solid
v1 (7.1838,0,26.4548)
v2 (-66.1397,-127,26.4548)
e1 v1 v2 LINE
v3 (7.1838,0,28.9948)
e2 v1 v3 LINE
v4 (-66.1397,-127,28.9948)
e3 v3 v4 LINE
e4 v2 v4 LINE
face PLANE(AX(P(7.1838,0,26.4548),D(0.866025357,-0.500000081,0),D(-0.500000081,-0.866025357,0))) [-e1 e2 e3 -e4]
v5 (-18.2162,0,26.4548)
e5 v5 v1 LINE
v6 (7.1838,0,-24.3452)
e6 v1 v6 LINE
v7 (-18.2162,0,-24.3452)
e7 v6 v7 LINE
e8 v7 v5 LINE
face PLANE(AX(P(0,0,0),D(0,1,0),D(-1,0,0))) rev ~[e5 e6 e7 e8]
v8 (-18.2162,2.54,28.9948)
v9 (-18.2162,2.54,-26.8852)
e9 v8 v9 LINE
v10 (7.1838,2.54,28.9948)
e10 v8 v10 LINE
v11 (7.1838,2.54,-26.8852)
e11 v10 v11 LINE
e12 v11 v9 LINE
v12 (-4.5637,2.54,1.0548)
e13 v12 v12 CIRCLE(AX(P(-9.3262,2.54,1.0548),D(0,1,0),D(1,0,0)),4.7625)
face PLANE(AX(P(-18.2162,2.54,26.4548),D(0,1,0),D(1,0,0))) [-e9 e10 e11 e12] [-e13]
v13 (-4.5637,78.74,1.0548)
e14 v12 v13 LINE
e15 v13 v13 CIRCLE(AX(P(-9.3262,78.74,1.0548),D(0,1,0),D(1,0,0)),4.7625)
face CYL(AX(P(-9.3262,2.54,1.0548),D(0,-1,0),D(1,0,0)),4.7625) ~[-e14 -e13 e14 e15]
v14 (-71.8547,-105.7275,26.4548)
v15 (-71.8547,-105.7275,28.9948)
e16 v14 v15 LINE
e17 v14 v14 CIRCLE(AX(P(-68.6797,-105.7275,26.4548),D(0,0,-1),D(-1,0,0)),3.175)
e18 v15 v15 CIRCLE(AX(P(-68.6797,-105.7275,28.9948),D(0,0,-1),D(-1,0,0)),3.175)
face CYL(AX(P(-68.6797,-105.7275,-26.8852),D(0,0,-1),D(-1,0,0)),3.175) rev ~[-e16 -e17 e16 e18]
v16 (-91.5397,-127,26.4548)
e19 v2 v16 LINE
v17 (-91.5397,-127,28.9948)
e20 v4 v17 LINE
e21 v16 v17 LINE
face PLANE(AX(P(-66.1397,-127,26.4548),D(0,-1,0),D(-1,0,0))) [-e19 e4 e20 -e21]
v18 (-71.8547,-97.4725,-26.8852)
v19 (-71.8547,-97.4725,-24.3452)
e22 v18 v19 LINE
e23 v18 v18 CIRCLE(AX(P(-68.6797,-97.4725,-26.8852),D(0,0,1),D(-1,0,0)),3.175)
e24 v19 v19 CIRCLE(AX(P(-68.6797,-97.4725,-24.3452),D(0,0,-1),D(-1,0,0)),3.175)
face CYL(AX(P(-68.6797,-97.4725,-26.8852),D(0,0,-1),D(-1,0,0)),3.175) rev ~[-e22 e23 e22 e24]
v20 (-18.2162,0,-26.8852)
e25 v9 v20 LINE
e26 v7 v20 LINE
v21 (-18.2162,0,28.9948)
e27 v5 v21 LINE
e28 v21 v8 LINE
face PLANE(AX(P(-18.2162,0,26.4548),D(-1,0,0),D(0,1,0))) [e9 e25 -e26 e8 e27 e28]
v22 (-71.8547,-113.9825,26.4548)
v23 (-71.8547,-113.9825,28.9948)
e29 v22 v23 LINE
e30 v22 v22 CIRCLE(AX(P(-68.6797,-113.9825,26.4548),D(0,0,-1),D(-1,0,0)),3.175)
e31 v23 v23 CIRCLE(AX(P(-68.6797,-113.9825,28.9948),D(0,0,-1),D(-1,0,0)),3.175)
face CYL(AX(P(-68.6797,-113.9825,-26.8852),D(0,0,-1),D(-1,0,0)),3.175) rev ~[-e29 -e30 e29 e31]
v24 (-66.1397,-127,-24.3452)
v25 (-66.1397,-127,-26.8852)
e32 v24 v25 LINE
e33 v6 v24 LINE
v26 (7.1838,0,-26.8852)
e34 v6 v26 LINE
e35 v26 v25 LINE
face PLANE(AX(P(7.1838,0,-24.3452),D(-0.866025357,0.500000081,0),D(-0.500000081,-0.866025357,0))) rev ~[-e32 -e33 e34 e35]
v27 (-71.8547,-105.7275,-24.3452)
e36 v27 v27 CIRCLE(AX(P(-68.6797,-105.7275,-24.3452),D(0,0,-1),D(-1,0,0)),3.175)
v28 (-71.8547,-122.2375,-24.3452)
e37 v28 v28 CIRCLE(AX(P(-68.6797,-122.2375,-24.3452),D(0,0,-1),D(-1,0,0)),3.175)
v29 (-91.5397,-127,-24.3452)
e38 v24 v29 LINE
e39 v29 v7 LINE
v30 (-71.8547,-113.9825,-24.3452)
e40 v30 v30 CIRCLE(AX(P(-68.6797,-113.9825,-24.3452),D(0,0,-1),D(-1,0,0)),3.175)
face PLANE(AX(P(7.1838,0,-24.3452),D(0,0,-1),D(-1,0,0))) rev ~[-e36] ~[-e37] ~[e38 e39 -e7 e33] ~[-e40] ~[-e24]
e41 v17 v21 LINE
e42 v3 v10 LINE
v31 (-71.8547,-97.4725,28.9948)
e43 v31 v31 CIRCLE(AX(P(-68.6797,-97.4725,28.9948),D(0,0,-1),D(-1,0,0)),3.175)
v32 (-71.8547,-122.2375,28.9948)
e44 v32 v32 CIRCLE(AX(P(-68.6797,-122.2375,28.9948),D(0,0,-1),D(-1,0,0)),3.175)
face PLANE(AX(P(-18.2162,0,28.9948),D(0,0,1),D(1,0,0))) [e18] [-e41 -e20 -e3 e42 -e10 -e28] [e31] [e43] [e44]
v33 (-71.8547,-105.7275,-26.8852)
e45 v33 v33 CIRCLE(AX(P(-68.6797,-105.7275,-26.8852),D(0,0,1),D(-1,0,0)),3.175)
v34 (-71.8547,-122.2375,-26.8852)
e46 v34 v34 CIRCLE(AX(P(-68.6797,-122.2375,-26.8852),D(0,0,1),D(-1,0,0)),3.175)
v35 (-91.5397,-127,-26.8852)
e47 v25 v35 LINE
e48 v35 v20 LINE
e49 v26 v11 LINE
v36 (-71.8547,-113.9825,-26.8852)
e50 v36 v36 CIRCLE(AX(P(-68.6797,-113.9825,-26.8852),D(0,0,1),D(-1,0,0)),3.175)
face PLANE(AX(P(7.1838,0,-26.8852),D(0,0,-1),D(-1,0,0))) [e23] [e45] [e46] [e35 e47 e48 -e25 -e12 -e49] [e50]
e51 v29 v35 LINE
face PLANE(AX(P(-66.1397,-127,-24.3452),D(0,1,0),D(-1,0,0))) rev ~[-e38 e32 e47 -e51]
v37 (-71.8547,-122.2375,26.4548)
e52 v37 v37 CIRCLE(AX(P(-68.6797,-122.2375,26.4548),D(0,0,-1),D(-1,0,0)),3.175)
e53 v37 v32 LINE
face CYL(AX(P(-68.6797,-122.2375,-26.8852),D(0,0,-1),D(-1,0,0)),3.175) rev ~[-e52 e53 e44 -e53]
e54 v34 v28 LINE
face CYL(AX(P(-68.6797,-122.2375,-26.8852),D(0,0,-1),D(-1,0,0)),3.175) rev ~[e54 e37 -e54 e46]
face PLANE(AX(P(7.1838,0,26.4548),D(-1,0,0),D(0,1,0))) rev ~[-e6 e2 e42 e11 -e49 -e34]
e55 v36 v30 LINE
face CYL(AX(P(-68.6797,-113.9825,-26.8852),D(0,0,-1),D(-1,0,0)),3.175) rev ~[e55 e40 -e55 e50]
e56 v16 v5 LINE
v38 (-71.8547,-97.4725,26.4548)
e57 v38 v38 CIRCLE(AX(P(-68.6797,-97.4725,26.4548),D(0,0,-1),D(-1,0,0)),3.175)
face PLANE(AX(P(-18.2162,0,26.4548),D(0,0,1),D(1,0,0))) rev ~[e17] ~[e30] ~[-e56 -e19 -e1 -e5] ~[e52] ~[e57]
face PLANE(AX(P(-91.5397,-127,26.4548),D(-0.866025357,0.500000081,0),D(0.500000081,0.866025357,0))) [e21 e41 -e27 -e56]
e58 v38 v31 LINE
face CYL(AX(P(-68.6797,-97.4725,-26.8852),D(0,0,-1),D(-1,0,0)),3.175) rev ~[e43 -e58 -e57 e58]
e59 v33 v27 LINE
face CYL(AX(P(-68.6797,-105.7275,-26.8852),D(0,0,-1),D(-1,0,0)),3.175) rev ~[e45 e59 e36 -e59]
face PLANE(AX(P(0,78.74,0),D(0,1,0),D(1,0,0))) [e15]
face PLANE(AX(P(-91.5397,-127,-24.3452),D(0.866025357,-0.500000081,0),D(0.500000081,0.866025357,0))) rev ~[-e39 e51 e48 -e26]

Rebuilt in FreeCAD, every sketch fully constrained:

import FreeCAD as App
import Part
import Sketcher
from FreeCAD import Vector
Q = App.Units.Quantity


def add_polygon(sketch, points):
    """Adds a closed chain of lines whose ends are joined by coincident constraints."""
    first, n = sketch.GeometryCount, len(points)
    for a, b in zip(points, points[1:] + points[:1]):
        sketch.addGeometry(Part.LineSegment(App.Vector(*a, 0), App.Vector(*b, 0)), False)
    for i in range(n):
        sketch.addConstraint(Sketcher.Constraint("Coincident", first + i, 2, first + (i + 1) % n, 1))

doc = App.newDocument("Part")
params = doc.addObject("Spreadsheet::Sheet", "Params")
for row, (alias, value) in enumerate([
    ("sketch1_width", "1 in"),
    ("sketch1_height", "2 in"),
    ("pad1_length", "0.1 in"),
    ("sketch2_width", "1 in"),
    ("sketch2_height", "0.1 in"),
    ("pad2_length", "0.1 in"),
    ("sketch3_width", "1 in"),
    ("sketch3_height", "0.1 in"),
    ("pad3_length", "0.1 in"),
    ("sketch4_diameter", "0.375 in"),
    ("pad4_length", "3 in"),
    ("sketch5_diameter", "0.25 in"),
], start=1):
    params.set(f"A{row}", alias)
    params.set(f"B{row}", "=" + value)
    params.setAlias(f"B{row}", alias)

body = doc.addObject("PartDesign::Body", "Body")

sketch1 = body.newObject("Sketcher::SketchObject", "Sketch")
sketch1.AttachmentSupport = (doc.getObject("XZ_Plane"), [""])
sketch1.MapMode = "FlatFace"
add_polygon(sketch1, [(-18, -24), (-18, 26), (7, 26), (7, -24)])
sketch1.addConstraint([
    Sketcher.Constraint("Vertical", 0),
    Sketcher.Constraint("Horizontal", 1),
    Sketcher.Constraint("Vertical", 2),
    Sketcher.Constraint("Horizontal", 3),
    Sketcher.Constraint("DistanceX", 1, 1, 1, 2, Q("1 in")),
    Sketcher.Constraint("DistanceY", 0, 1, 0, 2, Q("2 in")),
    Sketcher.Constraint("DistanceX", 0, 2, -1, 1, 18.2162),
    Sketcher.Constraint("DistanceY", -1, 1, 0, 2, 26.4548),
])
sketch1.setExpression("Constraints[8]", "Params.sketch1_width")
sketch1.setExpression("Constraints[9]", "Params.sketch1_height")
pad1 = body.newObject("PartDesign::Pad", "Pad")
pad1.Profile = sketch1
pad1.setExpression("Length", "Params.pad1_length")
pad1.Reversed = True

sketch2 = body.newObject("Sketcher::SketchObject", "Sketch001")
sketch2.AttachmentSupport = (doc.getObject("XY_Plane"), [""])
sketch2.MapMode = "FlatFace"
sketch2.AttachmentOffset = App.Placement(Vector(0, 0, -24.3452), App.Rotation())
add_polygon(sketch2, [(-91.5, -127), (-18.2, 0), (-18.2, 2.5), (7.2, 2.5), (7.2, 0), (-66.1, -127)])
sketch2.addConstraint([
    Sketcher.Constraint("Vertical", 1),
    Sketcher.Constraint("Horizontal", 2),
    Sketcher.Constraint("Vertical", 3),
    Sketcher.Constraint("Horizontal", 5),
    Sketcher.Constraint("PointOnObject", 0, 2, -1),
    Sketcher.Constraint("PointOnObject", 3, 2, -1),
    Sketcher.Constraint("Parallel", 0, 4),
    Sketcher.Constraint("DistanceY", 4, 2, -1, 1, Q("5 in")),
    Sketcher.Constraint("Angle", 0, Q("60 deg")),
    Sketcher.Constraint("DistanceX", 2, 1, 2, 2, Q("1 in")),
    Sketcher.Constraint("DistanceY", 1, 1, 1, 2, Q("0.1 in")),
    Sketcher.Constraint("DistanceX", 0, 2, -1, 1, 18.2162),
])
sketch2.setExpression("Constraints[15]", "Params.sketch2_width")
sketch2.setExpression("Constraints[16]", "Params.sketch2_height")
pad2 = body.newObject("PartDesign::Pad", "Pad001")
pad2.Profile = sketch2
pad2.setExpression("Length", "Params.pad2_length")
pad2.Reversed = True

sketch3 = body.newObject("Sketcher::SketchObject", "Sketch002")
sketch3.AttachmentSupport = (doc.getObject("XY_Plane"), [""])
sketch3.MapMode = "FlatFace"
sketch3.AttachmentOffset = App.Placement(Vector(0, 0, 26.4548), App.Rotation())
add_polygon(sketch3, [(-18.2, 2.5), (-18.2, 0), (-91.5, -127), (-66.1, -127), (7.2, 0), (7.2, 2.5)])
sketch3.addConstraint([
    Sketcher.Constraint("Vertical", 0),
    Sketcher.Constraint("Horizontal", 2),
    Sketcher.Constraint("Vertical", 4),
    Sketcher.Constraint("Horizontal", 5),
    Sketcher.Constraint("PointOnObject", 0, 2, -1),
    Sketcher.Constraint("PointOnObject", 3, 2, -1),
    Sketcher.Constraint("Parallel", 1, 3),
    Sketcher.Constraint("DistanceX", 2, 1, 2, 2, Q("1 in")),
    Sketcher.Constraint("DistanceY", 0, 2, 0, 1, Q("0.1 in")),
    Sketcher.Constraint("DistanceY", 1, 2, -1, 1, Q("5 in")),
    Sketcher.Constraint("Angle", 1, Q("-120 deg")),
    Sketcher.Constraint("DistanceX", 0, 2, -1, 1, 18.2162),
])
sketch3.setExpression("Constraints[13]", "Params.sketch3_width")
sketch3.setExpression("Constraints[14]", "Params.sketch3_height")
pad3 = body.newObject("PartDesign::Pad", "Pad002")
pad3.Profile = sketch3
pad3.setExpression("Length", "Params.pad3_length")

sketch4 = body.newObject("Sketcher::SketchObject", "Sketch003")
sketch4.AttachmentSupport = (doc.getObject("XZ_Plane"), [""])
sketch4.MapMode = "FlatFace"
sketch4.AttachmentOffset = App.Placement(Vector(0, 0, -0.1 * 25.4), App.Rotation())
sketch4.addGeometry(Part.Circle(Vector(-9.3, 1.1, 0), Vector(0, 0, 1), 4.8), False)
sketch4.addConstraint([
    Sketcher.Constraint("Diameter", 0, Q("0.375 in")),
    Sketcher.Constraint("DistanceX", 0, 3, -1, 1, 9.3262),
    Sketcher.Constraint("DistanceY", -1, 1, 0, 3, 1.0548),
])
sketch4.setExpression("Constraints[0]", "Params.sketch4_diameter")
pad4 = body.newObject("PartDesign::Pad", "Pad003")
pad4.Profile = sketch4
pad4.setExpression("Length", "Params.pad4_length")
pad4.Reversed = True

sketch5 = body.newObject("Sketcher::SketchObject", "Sketch004")
sketch5.AttachmentSupport = (doc.getObject("XY_Plane"), [""])
sketch5.MapMode = "FlatFace"
sketch5.AttachmentOffset = App.Placement(Vector(0, 0, -26.8852), App.Rotation())
sketch5.addGeometry([
    Part.Circle(Vector(-68.7, -97.5, 0), Vector(0, 0, 1), 3.2),
    Part.Circle(Vector(-68.7, -122.2, 0), Vector(0, 0, 1), 3.2),
    Part.Circle(Vector(-68.7, -105.7, 0), Vector(0, 0, 1), 3.2),
    Part.Circle(Vector(-68.7, -114, 0), Vector(0, 0, 1), 3.2),
], False)
sketch5.addConstraint([
    Sketcher.Constraint("Equal", 0, 1),
    Sketcher.Constraint("Equal", 1, 2),
    Sketcher.Constraint("Equal", 2, 3),
    Sketcher.Constraint("Vertical", 0, 3, 1, 3),
    Sketcher.Constraint("Vertical", 1, 3, 2, 3),
    Sketcher.Constraint("Vertical", 2, 3, 3, 3),
    Sketcher.Constraint("Diameter", 0, Q("0.25 in")),
    Sketcher.Constraint("DistanceY", 2, 3, 0, 3, Q("0.325 in")),
    Sketcher.Constraint("DistanceY", 1, 3, 3, 3, Q("0.325 in")),
    Sketcher.Constraint("DistanceY", 3, 3, 2, 3, Q("0.325 in")),
    Sketcher.Constraint("DistanceY", 1, 3, -1, 1, Q("4.8125 in")),
    Sketcher.Constraint("DistanceX", 0, 3, -1, 1, 68.6797),
])
sketch5.setExpression("Constraints[6]", "Params.sketch5_diameter")
pocket1 = body.newObject("PartDesign::Pocket", "Pocket")
pocket1.Profile = sketch5
pocket1.Type = "ThroughAll"
pocket1.Reversed = True

doc.recompute()
